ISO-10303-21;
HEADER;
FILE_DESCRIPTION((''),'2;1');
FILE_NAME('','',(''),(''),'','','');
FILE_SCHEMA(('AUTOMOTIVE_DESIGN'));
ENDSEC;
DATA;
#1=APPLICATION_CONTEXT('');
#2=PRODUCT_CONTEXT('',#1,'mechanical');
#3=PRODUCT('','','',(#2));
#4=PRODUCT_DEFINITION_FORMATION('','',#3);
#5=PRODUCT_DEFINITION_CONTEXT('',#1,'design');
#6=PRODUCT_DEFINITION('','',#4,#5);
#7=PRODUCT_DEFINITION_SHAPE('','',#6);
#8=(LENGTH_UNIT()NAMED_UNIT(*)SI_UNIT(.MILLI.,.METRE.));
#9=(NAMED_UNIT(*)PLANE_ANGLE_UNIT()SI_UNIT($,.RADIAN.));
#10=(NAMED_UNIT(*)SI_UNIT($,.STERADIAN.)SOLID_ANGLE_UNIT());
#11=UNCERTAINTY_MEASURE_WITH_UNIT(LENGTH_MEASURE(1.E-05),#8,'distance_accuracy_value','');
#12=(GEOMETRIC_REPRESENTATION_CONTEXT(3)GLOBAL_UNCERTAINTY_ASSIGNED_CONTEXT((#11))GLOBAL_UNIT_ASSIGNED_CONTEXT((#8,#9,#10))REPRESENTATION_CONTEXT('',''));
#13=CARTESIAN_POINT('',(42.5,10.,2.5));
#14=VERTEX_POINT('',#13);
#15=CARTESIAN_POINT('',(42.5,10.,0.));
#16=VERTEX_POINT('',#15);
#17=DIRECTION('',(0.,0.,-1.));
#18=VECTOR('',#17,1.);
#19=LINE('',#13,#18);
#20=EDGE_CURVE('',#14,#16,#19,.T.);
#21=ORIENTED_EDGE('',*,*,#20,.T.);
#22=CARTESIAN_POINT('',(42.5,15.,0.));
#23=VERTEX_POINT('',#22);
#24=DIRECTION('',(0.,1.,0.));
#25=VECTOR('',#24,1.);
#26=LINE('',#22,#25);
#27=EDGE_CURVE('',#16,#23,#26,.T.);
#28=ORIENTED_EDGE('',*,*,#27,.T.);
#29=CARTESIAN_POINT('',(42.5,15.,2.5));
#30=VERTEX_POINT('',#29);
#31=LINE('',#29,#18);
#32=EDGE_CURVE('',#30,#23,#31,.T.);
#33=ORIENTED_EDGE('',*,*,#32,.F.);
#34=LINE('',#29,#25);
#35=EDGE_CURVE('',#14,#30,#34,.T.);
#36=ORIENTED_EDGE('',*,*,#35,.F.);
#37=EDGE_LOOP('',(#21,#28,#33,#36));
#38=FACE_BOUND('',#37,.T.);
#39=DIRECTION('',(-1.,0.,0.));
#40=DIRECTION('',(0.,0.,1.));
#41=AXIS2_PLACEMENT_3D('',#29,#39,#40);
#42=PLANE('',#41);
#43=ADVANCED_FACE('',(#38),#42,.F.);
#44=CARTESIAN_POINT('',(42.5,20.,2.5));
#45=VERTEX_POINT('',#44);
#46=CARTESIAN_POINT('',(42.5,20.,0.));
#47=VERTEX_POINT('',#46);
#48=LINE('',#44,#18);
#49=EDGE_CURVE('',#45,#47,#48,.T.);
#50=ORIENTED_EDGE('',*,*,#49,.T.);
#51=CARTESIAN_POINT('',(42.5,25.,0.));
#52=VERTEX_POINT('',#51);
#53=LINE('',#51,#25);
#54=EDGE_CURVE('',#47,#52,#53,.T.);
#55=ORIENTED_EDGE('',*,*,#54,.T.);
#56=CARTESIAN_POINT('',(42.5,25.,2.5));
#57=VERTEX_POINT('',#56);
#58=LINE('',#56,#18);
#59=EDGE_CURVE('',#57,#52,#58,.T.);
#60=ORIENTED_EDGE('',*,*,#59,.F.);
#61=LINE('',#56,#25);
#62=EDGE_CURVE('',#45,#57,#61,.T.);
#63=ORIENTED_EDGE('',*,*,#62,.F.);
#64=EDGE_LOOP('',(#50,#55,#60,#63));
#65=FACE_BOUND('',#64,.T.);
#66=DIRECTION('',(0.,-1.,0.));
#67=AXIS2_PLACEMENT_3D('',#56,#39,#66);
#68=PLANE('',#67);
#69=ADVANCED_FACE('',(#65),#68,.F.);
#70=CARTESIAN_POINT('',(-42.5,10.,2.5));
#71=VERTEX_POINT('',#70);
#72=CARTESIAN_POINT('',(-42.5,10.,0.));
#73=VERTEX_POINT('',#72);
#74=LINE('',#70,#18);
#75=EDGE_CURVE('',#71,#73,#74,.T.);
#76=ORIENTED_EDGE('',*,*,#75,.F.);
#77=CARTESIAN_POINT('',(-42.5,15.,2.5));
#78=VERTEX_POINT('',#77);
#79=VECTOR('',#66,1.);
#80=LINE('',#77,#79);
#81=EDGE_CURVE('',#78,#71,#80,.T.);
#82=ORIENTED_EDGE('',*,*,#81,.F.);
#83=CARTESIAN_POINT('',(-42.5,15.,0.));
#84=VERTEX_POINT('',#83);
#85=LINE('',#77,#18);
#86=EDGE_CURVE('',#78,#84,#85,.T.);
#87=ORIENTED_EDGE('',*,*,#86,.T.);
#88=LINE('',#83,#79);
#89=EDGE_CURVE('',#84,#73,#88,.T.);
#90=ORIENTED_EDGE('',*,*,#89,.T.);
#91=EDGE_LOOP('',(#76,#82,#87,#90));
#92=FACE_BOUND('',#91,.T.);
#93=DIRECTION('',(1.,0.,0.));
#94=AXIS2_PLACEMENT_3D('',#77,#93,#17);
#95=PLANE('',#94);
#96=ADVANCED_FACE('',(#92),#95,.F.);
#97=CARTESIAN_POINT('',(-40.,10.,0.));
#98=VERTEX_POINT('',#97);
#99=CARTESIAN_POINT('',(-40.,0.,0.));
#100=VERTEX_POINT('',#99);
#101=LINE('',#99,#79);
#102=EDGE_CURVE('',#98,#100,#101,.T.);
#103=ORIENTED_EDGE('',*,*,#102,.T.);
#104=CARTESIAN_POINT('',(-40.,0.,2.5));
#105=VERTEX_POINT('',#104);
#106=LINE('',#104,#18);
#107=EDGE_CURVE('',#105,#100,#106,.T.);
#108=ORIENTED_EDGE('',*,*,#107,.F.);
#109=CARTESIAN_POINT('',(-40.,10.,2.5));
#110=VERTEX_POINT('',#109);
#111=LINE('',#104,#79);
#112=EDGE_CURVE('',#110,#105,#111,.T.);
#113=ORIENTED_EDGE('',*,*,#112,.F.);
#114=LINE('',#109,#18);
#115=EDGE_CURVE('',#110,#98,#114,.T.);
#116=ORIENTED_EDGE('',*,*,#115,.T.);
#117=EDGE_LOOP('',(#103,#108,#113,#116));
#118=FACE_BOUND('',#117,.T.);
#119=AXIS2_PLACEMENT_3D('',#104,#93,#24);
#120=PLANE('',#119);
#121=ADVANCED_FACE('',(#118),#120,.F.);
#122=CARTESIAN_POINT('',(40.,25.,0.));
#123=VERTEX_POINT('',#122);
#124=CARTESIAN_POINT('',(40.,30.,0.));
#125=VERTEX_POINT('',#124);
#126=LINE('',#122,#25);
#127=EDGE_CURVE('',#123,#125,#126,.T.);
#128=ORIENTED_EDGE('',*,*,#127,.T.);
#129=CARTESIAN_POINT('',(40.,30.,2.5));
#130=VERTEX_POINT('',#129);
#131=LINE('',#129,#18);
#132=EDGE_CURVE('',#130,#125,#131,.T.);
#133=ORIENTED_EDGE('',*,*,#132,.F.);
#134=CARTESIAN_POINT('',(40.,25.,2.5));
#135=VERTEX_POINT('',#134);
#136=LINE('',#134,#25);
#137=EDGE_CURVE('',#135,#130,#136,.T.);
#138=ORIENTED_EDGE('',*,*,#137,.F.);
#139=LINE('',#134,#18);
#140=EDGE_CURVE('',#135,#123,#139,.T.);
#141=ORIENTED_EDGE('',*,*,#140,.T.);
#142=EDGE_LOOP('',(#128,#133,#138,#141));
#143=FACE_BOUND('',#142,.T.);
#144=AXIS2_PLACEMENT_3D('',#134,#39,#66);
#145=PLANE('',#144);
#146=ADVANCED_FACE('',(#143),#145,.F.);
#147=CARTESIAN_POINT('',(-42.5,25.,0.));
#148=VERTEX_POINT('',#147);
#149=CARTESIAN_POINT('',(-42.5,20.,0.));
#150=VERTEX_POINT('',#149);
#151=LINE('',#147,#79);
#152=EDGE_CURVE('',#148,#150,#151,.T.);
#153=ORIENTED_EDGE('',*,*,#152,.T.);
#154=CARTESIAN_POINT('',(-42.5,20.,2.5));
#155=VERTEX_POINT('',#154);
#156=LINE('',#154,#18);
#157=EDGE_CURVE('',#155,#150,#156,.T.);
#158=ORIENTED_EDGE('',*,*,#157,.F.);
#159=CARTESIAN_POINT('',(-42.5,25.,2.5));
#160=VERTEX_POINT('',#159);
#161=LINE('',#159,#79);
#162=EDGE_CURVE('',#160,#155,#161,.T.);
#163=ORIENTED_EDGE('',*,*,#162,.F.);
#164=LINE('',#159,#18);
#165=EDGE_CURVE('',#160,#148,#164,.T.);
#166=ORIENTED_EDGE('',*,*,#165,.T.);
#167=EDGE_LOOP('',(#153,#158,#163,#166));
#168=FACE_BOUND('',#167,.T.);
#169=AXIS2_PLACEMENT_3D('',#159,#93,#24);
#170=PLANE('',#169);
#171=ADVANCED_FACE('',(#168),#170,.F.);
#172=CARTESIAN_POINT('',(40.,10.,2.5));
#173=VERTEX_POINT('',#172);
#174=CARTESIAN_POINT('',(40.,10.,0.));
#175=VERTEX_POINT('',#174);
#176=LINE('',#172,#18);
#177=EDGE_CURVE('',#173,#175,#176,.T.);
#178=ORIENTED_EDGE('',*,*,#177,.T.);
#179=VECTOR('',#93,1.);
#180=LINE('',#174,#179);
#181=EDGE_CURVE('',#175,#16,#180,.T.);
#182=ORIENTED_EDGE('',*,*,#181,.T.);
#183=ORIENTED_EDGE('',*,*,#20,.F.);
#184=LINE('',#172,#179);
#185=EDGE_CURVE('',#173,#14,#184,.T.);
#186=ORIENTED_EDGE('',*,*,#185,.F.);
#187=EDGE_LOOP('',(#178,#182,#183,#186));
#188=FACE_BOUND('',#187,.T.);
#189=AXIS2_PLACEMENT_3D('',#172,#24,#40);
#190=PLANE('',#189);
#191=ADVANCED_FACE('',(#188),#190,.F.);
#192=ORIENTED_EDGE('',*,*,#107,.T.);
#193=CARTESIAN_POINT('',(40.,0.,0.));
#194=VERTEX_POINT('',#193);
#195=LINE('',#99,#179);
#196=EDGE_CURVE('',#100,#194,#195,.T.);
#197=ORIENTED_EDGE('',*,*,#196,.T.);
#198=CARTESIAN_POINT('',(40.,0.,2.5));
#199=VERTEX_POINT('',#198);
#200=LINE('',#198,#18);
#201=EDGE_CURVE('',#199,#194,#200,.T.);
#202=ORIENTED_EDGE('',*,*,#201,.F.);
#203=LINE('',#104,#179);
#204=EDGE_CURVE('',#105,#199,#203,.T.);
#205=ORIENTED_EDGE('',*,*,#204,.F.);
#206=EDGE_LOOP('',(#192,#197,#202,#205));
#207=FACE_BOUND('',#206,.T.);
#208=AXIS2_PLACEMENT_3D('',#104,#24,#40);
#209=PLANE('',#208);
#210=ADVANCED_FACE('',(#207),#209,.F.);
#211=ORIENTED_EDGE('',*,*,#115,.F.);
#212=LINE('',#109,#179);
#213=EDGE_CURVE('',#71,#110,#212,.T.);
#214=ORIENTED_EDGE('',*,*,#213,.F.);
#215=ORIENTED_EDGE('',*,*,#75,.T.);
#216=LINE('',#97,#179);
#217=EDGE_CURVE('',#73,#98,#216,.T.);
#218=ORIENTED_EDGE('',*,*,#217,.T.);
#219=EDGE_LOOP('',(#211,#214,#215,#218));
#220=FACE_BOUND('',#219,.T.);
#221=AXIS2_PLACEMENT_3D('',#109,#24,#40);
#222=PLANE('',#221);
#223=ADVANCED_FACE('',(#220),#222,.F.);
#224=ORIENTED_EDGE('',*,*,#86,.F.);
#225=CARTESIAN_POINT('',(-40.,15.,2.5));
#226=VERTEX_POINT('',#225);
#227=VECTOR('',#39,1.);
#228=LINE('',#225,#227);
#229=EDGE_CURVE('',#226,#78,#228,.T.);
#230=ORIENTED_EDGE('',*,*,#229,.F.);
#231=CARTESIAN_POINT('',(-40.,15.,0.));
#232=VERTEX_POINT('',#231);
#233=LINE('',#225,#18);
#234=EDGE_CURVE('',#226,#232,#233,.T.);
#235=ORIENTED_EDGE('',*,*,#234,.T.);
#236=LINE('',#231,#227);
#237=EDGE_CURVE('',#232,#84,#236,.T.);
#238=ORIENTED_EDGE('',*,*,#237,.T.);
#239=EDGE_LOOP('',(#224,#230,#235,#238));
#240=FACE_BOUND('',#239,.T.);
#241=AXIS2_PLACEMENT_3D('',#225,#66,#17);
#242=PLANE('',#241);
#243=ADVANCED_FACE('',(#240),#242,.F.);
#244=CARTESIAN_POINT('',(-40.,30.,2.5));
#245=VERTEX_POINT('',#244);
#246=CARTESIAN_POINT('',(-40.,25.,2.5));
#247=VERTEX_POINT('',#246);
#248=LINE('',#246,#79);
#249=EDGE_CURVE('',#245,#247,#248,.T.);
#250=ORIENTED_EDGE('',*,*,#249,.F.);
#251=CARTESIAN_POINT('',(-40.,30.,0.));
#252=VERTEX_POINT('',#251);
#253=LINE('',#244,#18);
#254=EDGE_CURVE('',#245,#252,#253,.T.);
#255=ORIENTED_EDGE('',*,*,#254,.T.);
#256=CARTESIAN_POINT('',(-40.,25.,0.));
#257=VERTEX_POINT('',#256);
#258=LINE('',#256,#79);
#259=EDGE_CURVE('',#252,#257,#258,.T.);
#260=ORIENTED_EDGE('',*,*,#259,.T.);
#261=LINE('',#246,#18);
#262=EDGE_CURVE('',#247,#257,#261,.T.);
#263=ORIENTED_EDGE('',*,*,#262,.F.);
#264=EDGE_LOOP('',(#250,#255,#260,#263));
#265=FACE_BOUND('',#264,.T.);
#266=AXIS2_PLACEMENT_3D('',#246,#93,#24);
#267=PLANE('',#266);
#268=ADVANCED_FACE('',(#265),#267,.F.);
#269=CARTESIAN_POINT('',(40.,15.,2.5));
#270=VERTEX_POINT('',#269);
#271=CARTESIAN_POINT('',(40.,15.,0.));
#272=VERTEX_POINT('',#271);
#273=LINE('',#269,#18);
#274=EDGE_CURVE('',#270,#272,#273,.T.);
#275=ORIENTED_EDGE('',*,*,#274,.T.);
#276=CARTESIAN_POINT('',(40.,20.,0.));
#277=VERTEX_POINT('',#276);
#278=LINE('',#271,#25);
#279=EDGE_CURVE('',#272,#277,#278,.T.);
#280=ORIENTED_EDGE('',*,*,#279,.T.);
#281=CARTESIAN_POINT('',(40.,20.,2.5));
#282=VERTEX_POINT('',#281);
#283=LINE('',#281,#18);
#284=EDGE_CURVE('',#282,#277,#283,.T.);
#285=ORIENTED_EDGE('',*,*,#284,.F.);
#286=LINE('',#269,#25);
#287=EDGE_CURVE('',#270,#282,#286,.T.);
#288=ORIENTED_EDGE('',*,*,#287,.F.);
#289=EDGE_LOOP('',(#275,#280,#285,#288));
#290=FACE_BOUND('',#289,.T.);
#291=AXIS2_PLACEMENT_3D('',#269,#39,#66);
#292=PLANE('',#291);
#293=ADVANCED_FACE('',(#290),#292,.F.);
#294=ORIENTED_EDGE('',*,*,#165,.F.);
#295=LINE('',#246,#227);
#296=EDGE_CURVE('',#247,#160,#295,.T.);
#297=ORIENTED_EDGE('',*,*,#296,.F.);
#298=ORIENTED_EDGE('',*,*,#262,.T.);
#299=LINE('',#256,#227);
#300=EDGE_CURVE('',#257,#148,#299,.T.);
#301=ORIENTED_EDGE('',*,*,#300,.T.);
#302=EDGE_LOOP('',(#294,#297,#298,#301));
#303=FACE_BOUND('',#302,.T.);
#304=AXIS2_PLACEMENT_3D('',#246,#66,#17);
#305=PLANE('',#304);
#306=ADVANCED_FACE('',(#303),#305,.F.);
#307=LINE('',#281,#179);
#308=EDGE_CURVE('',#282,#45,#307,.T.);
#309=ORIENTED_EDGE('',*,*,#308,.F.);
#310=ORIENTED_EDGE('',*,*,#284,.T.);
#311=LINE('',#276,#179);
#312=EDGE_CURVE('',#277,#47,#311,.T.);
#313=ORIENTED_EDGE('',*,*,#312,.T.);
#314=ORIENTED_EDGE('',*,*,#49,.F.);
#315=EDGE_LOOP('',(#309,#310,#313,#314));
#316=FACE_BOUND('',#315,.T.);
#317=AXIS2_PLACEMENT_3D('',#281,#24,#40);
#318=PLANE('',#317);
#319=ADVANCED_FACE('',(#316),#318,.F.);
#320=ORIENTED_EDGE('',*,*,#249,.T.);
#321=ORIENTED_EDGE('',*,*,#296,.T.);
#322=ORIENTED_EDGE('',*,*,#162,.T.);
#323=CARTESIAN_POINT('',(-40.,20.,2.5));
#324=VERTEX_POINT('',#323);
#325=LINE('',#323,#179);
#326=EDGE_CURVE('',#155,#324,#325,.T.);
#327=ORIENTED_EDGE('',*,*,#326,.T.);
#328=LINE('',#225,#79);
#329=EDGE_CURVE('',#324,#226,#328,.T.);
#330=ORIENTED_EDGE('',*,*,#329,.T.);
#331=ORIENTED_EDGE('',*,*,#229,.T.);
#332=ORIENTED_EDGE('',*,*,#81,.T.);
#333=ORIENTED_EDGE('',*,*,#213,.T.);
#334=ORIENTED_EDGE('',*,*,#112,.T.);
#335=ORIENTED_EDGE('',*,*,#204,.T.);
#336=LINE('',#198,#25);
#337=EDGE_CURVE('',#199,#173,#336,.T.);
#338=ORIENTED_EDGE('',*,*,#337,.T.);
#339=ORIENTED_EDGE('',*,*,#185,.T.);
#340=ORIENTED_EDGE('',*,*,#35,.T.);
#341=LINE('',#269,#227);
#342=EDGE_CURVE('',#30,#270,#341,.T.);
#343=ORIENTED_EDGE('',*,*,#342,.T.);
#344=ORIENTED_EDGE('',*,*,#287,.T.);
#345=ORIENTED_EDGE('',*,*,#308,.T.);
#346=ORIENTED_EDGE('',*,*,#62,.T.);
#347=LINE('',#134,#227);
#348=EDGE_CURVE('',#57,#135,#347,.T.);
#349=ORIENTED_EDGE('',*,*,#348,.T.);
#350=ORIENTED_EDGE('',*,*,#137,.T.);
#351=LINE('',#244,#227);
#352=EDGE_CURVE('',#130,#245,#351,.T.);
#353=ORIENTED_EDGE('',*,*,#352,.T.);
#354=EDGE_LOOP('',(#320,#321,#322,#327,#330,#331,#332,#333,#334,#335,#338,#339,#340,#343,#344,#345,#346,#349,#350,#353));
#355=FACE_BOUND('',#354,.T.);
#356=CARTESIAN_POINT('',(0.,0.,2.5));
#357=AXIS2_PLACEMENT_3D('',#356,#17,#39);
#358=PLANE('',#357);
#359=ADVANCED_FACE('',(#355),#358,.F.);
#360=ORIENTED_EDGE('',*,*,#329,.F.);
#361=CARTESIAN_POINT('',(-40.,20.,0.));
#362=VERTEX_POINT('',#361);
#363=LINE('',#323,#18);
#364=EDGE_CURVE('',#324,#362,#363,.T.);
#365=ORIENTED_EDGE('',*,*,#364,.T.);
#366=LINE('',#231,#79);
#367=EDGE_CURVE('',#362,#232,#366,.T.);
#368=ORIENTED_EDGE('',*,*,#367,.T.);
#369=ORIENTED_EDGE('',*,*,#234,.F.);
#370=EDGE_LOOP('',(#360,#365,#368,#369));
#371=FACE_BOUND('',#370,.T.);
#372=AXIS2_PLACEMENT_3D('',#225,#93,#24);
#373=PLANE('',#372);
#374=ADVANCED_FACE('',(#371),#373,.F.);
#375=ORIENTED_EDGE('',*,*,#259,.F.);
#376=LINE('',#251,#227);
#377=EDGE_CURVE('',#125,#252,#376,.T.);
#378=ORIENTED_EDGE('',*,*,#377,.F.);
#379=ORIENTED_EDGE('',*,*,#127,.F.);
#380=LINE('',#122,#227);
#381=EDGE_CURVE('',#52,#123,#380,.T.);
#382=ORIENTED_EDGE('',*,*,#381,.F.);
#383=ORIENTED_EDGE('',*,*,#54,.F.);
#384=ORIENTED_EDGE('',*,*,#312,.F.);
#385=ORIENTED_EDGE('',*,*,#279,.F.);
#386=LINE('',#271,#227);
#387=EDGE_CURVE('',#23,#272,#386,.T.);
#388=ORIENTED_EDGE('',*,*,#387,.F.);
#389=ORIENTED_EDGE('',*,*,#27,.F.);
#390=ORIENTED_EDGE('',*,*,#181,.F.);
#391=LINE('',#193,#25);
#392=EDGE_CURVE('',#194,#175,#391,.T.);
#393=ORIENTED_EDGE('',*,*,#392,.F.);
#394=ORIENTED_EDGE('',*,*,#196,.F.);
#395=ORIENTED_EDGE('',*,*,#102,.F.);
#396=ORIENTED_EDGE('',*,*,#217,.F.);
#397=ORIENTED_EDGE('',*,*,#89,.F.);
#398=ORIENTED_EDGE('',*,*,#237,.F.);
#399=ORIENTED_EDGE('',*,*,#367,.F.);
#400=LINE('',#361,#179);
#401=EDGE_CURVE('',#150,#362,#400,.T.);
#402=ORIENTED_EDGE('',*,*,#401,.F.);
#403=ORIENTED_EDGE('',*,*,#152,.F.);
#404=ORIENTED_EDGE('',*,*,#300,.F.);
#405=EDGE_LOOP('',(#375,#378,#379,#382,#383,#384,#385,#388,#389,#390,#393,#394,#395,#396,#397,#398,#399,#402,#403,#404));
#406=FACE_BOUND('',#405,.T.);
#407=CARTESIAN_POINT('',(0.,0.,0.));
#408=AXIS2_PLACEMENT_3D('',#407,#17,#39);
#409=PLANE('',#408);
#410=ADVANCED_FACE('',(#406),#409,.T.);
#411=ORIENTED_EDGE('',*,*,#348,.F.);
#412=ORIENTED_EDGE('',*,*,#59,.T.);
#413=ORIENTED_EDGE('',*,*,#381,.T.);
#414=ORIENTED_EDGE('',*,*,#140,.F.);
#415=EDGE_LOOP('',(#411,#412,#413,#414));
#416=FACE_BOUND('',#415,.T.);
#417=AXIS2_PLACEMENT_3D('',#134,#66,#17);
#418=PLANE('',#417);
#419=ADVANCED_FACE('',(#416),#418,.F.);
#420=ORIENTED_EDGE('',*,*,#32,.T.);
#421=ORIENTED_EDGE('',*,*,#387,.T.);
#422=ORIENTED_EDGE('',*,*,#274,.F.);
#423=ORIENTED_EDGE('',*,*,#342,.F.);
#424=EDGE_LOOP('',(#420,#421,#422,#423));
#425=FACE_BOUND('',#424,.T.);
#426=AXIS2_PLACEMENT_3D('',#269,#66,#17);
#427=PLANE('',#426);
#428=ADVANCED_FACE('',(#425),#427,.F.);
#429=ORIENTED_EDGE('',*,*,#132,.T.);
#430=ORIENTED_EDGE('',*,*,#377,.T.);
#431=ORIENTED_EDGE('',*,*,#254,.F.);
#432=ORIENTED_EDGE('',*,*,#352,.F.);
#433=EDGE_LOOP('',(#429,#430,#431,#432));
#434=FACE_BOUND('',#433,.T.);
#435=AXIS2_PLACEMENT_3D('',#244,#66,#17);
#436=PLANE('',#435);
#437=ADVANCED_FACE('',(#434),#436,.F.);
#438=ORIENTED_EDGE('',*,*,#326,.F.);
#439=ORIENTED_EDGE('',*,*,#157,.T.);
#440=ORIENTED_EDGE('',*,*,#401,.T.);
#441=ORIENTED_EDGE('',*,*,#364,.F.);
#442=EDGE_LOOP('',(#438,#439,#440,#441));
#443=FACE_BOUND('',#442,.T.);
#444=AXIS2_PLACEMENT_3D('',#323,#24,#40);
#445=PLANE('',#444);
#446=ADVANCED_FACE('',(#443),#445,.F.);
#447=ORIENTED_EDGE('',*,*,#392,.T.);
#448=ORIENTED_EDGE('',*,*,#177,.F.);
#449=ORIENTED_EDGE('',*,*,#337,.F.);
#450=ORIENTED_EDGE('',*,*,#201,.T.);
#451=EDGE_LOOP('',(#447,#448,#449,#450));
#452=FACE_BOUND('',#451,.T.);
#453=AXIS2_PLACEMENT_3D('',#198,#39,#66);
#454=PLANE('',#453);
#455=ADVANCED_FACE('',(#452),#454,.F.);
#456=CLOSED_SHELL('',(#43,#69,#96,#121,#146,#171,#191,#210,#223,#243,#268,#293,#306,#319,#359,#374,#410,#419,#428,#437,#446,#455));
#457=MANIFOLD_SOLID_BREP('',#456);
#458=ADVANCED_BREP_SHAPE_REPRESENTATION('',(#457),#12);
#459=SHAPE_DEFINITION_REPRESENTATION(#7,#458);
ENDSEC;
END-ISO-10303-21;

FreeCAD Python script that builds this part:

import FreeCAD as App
import Part
import Sketcher
from FreeCAD import Vector
Q = App.Units.Quantity

doc = App.newDocument("Part")
body = doc.addObject("PartDesign::Body", "Body")

# Sketch on XY plane
sketch1 = body.newObject("Sketcher::SketchObject", "Sketch")
sketch1.AttachmentSupport = (doc.getObject("XY_Plane"), [""])
sketch1.MapMode = "FlatFace"
sketch1.addGeometry(Part.LineSegment(Vector(-42.5, 15, 0), Vector(-42.5, 10, 0)), False)
sketch1.addGeometry(Part.LineSegment(Vector(-42.5, 10, 0), Vector(-40, 10, 0)), False)
sketch1.addGeometry(Part.LineSegment(Vector(-40, 10, 0), Vector(-40, 0, 0)), False)
sketch1.addGeometry(Part.LineSegment(Vector(-40, 0, 0), Vector(40, 0, 0)), False)
sketch1.addGeometry(Part.LineSegment(Vector(40, 0, 0), Vector(40, 10, 0)), False)
sketch1.addGeometry(Part.LineSegment(Vector(40, 10, 0), Vector(42.5, 10, 0)), False)
sketch1.addGeometry(Part.LineSegment(Vector(42.5, 10, 0), Vector(42.5, 15, 0)), False)
sketch1.addGeometry(Part.LineSegment(Vector(42.5, 15, 0), Vector(40, 15, 0)), False)
sketch1.addGeometry(Part.LineSegment(Vector(40, 15, 0), Vector(40, 20, 0)), False)
sketch1.addGeometry(Part.LineSegment(Vector(40, 20, 0), Vector(42.5, 20, 0)), False)
sketch1.addGeometry(Part.LineSegment(Vector(42.5, 20, 0), Vector(42.5, 25, 0)), False)
sketch1.addGeometry(Part.LineSegment(Vector(42.5, 25, 0), Vector(40, 25, 0)), False)
sketch1.addGeometry(Part.LineSegment(Vector(40, 25, 0), Vector(40, 30, 0)), False)
sketch1.addGeometry(Part.LineSegment(Vector(40, 30, 0), Vector(-40, 30, 0)), False)
sketch1.addGeometry(Part.LineSegment(Vector(-40, 30, 0), Vector(-40, 25, 0)), False)
sketch1.addGeometry(Part.LineSegment(Vector(-40, 25, 0), Vector(-42.5, 25, 0)), False)
sketch1.addGeometry(Part.LineSegment(Vector(-42.5, 25, 0), Vector(-42.5, 20, 0)), False)
sketch1.addGeometry(Part.LineSegment(Vector(-42.5, 20, 0), Vector(-40, 20, 0)), False)
sketch1.addGeometry(Part.LineSegment(Vector(-40, 20, 0), Vector(-40, 15, 0)), False)
sketch1.addGeometry(Part.LineSegment(Vector(-40, 15, 0), Vector(-42.5, 15, 0)), False)
sketch1.addConstraint(Sketcher.Constraint("Coincident", 0, 2, 1, 1))
sketch1.addConstraint(Sketcher.Constraint("Coincident", 1, 2, 2, 1))
sketch1.addConstraint(Sketcher.Constraint("Coincident", 2, 2, 3, 1))
sketch1.addConstraint(Sketcher.Constraint("Coincident", 3, 2, 4, 1))
sketch1.addConstraint(Sketcher.Constraint("Coincident", 4, 2, 5, 1))
sketch1.addConstraint(Sketcher.Constraint("Coincident", 5, 2, 6, 1))
sketch1.addConstraint(Sketcher.Constraint("Coincident", 6, 2, 7, 1))
sketch1.addConstraint(Sketcher.Constraint("Coincident", 7, 2, 8, 1))
sketch1.addConstraint(Sketcher.Constraint("Coincident", 8, 2, 9, 1))
sketch1.addConstraint(Sketcher.Constraint("Coincident", 9, 2, 10, 1))
sketch1.addConstraint(Sketcher.Constraint("Coincident", 10, 2, 11, 1))
sketch1.addConstraint(Sketcher.Constraint("Coincident", 11, 2, 12, 1))
sketch1.addConstraint(Sketcher.Constraint("Coincident", 12, 2, 13, 1))
sketch1.addConstraint(Sketcher.Constraint("Coincident", 13, 2, 14, 1))
sketch1.addConstraint(Sketcher.Constraint("Coincident", 14, 2, 15, 1))
sketch1.addConstraint(Sketcher.Constraint("Coincident", 15, 2, 16, 1))
sketch1.addConstraint(Sketcher.Constraint("Coincident", 16, 2, 17, 1))
sketch1.addConstraint(Sketcher.Constraint("Coincident", 17, 2, 18, 1))
sketch1.addConstraint(Sketcher.Constraint("Coincident", 18, 2, 19, 1))
sketch1.addConstraint(Sketcher.Constraint("Coincident", 19, 2, 0, 1))
sketch1.addConstraint(Sketcher.Constraint("Vertical", 0))
sketch1.addConstraint(Sketcher.Constraint("Horizontal", 1))
sketch1.addConstraint(Sketcher.Constraint("Vertical", 2))
sketch1.addConstraint(Sketcher.Constraint("Horizontal", 3))
sketch1.addConstraint(Sketcher.Constraint("Vertical", 4))
sketch1.addConstraint(Sketcher.Constraint("Horizontal", 5))
sketch1.addConstraint(Sketcher.Constraint("Vertical", 6))
sketch1.addConstraint(Sketcher.Constraint("Horizontal", 7))
sketch1.addConstraint(Sketcher.Constraint("Vertical", 8))
sketch1.addConstraint(Sketcher.Constraint("Horizontal", 9))
sketch1.addConstraint(Sketcher.Constraint("Vertical", 10))
sketch1.addConstraint(Sketcher.Constraint("Horizontal", 11))
sketch1.addConstraint(Sketcher.Constraint("Vertical", 12))
sketch1.addConstraint(Sketcher.Constraint("Horizontal", 13))
sketch1.addConstraint(Sketcher.Constraint("Vertical", 14))
sketch1.addConstraint(Sketcher.Constraint("Horizontal", 15))
sketch1.addConstraint(Sketcher.Constraint("Vertical", 16))
sketch1.addConstraint(Sketcher.Constraint("Horizontal", 17))
sketch1.addConstraint(Sketcher.Constraint("Vertical", 18))
sketch1.addConstraint(Sketcher.Constraint("Horizontal", 19))
sketch1.addConstraint(Sketcher.Constraint("Symmetric", 2, 2, 3, 2, -1, 1))
sketch1.addConstraint(Sketcher.Constraint("Symmetric", 0, 2, 5, 2, -2))
sketch1.addConstraint(Sketcher.Constraint("Symmetric", 11, 2, 14, 2, -2))
sketch1.addConstraint(Sketcher.Constraint("Symmetric", 9, 2, 16, 2, -2))
sketch1.addConstraint(Sketcher.Constraint("Symmetric", 7, 2, 18, 2, -2))
sketch1.addConstraint(Sketcher.Constraint("Vertical", 4, 2, 7, 2))
sketch1.addConstraint(Sketcher.Constraint("Vertical", 6, 2, 9, 2))
sketch1.addConstraint(Sketcher.Constraint("Vertical", 8, 2, 11, 2))
sketch1.addConstraint(Sketcher.Constraint("Equal", 6, 8))
sketch1.addConstraint(Sketcher.Constraint("Equal", 8, 10))
sketch1.addConstraint(Sketcher.Constraint("Equal", 10, 12))
sketch1.addConstraint(Sketcher.Constraint("DistanceX", 3, 1, 3, 2, Q("80 mm")))
sketch1.addConstraint(Sketcher.Constraint("DistanceY", 0, 2, 0, 1, Q("5 mm")))
sketch1.addConstraint(Sketcher.Constraint("DistanceY", 2, 2, 2, 1, Q("10 mm")))
sketch1.addConstraint(Sketcher.Constraint("DistanceX", 1, 1, 1, 2, Q("2.5 mm")))
pad1 = body.newObject("PartDesign::Pad", "Pad")
pad1.Profile = sketch1
pad1.Length = 2.5

doc.recompute()
